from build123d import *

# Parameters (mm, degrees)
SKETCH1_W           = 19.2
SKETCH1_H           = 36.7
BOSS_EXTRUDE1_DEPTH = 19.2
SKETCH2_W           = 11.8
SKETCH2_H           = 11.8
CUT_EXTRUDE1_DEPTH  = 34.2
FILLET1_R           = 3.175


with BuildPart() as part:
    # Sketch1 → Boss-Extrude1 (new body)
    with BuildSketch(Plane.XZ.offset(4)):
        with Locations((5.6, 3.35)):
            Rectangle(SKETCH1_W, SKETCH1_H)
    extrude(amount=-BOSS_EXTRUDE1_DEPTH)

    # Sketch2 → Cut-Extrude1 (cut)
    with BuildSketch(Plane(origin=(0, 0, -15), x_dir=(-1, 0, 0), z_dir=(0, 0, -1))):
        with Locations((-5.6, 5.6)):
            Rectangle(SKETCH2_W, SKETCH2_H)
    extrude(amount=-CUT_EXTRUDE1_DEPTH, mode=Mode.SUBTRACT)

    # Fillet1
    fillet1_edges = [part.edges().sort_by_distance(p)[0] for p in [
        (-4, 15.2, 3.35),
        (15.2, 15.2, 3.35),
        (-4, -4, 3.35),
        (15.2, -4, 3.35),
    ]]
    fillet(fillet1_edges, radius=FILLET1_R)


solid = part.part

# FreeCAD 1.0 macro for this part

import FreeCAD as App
import Part
import Sketcher
from FreeCAD import Vector
Q = App.Units.Quantity


def edges_at(feature, points):
    """Names of the edges that pass closest to the given points."""
    edges = feature.Shape.Edges
    near = lambda p: min(range(len(edges)), key=lambda i: edges[i].distToShape(Part.Vertex(*p))[0])
    return sorted({f"Edge{near(p) + 1}" for p in points})

doc = App.newDocument("Part")
body = doc.addObject("PartDesign::Body", "Body")

# Sketch on XZ plane
sketch1 = body.newObject("Sketcher::SketchObject", "Sketch")
sketch1.AttachmentSupport = (doc.getObject("XZ_Plane"), [""])
sketch1.MapMode = "FlatFace"
sketch1.AttachmentOffset = App.Placement(Vector(0, 0, 4), App.Rotation())
sketch1.addGeometry([
    Part.LineSegment(Vector(-4, 22, 0), Vector(-4, -15, 0)),
    Part.LineSegment(Vector(-4, -15, 0), Vector(15, -15, 0)),
    Part.LineSegment(Vector(15, -15, 0), Vector(15, 22, 0)),
    Part.LineSegment(Vector(15, 22, 0), Vector(-4, 22, 0)),
], False)
sketch1.addConstraint([
    Sketcher.Constraint("Coincident", 0, 2, 1, 1),
    Sketcher.Constraint("Coincident", 1, 2, 2, 1),
    Sketcher.Constraint("Coincident", 2, 2, 3, 1),
    Sketcher.Constraint("Coincident", 3, 2, 0, 1),
    Sketcher.Constraint("Vertical", 0),
    Sketcher.Constraint("Horizontal", 1),
    Sketcher.Constraint("Vertical", 2),
    Sketcher.Constraint("Horizontal", 3),
    Sketcher.Constraint("DistanceX", 1, 1, 1, 2, Q("19.2 mm")),
    Sketcher.Constraint("DistanceY", 0, 2, 0, 1, Q("36.7 mm")),
    Sketcher.Constraint("DistanceX", 0, 2, -1, 1, Q("4 mm")),
    Sketcher.Constraint("DistanceY", 0, 2, -1, 1, Q("15 mm")),
])
pad1 = body.newObject("PartDesign::Pad", "Pad")
pad1.Profile = sketch1
pad1.Length = 19.2
pad1.Reversed = True

# Sketch on XY plane
sketch2 = body.newObject("Sketcher::SketchObject", "Sketch001")
sketch2.AttachmentSupport = (doc.getObject("XY_Plane"), [""])
sketch2.MapMode = "FlatFace"
sketch2.AttachmentOffset = App.Placement(Vector(0, 0, -15), App.Rotation())
sketch2.addGeometry([
    Part.LineSegment(Vector(12, 12, 0), Vector(12, 0, 0)),
    Part.LineSegment(Vector(12, 0, 0), Vector(0, 0, 0)),
    Part.LineSegment(Vector(0, 0, 0), Vector(0, 12, 0)),
    Part.LineSegment(Vector(0, 12, 0), Vector(12, 12, 0)),
], False)
sketch2.addConstraint([
    Sketcher.Constraint("Coincident", 0, 2, 1, 1),
    Sketcher.Constraint("Coincident", 1, 2, 2, 1),
    Sketcher.Constraint("Coincident", 2, 2, 3, 1),
    Sketcher.Constraint("Coincident", 3, 2, 0, 1),
    Sketcher.Constraint("Vertical", 0),
    Sketcher.Constraint("Horizontal", 1),
    Sketcher.Constraint("Vertical", 2),
    Sketcher.Constraint("Horizontal", 3),
    Sketcher.Constraint("Equal", 3, 0),
    Sketcher.Constraint("DistanceX", 1, 2, 1, 1, Q("11.8 mm")),
    Sketcher.Constraint("DistanceX", -1, 1, 0, 2, Q("11.5 mm")),
    Sketcher.Constraint("DistanceY", 0, 2, -1, 1, Q("0.3 mm")),
])
pocket1 = body.newObject("PartDesign::Pocket", "Pocket")
pocket1.Profile = sketch2
pocket1.Length = 34.2
pocket1.Reversed = True
doc.recompute()

fillet = body.newObject("PartDesign::Fillet", "Fillet")
fillet.Base = (pocket1, edges_at(pocket1, [
    (-4, 15.2, 3.35),
    (15.2, 15.2, 3.35),
    (-4, -4, 3.35),
    (15.2, -4, 3.35),
]))
fillet.Radius = 3.175

doc.recompute()
